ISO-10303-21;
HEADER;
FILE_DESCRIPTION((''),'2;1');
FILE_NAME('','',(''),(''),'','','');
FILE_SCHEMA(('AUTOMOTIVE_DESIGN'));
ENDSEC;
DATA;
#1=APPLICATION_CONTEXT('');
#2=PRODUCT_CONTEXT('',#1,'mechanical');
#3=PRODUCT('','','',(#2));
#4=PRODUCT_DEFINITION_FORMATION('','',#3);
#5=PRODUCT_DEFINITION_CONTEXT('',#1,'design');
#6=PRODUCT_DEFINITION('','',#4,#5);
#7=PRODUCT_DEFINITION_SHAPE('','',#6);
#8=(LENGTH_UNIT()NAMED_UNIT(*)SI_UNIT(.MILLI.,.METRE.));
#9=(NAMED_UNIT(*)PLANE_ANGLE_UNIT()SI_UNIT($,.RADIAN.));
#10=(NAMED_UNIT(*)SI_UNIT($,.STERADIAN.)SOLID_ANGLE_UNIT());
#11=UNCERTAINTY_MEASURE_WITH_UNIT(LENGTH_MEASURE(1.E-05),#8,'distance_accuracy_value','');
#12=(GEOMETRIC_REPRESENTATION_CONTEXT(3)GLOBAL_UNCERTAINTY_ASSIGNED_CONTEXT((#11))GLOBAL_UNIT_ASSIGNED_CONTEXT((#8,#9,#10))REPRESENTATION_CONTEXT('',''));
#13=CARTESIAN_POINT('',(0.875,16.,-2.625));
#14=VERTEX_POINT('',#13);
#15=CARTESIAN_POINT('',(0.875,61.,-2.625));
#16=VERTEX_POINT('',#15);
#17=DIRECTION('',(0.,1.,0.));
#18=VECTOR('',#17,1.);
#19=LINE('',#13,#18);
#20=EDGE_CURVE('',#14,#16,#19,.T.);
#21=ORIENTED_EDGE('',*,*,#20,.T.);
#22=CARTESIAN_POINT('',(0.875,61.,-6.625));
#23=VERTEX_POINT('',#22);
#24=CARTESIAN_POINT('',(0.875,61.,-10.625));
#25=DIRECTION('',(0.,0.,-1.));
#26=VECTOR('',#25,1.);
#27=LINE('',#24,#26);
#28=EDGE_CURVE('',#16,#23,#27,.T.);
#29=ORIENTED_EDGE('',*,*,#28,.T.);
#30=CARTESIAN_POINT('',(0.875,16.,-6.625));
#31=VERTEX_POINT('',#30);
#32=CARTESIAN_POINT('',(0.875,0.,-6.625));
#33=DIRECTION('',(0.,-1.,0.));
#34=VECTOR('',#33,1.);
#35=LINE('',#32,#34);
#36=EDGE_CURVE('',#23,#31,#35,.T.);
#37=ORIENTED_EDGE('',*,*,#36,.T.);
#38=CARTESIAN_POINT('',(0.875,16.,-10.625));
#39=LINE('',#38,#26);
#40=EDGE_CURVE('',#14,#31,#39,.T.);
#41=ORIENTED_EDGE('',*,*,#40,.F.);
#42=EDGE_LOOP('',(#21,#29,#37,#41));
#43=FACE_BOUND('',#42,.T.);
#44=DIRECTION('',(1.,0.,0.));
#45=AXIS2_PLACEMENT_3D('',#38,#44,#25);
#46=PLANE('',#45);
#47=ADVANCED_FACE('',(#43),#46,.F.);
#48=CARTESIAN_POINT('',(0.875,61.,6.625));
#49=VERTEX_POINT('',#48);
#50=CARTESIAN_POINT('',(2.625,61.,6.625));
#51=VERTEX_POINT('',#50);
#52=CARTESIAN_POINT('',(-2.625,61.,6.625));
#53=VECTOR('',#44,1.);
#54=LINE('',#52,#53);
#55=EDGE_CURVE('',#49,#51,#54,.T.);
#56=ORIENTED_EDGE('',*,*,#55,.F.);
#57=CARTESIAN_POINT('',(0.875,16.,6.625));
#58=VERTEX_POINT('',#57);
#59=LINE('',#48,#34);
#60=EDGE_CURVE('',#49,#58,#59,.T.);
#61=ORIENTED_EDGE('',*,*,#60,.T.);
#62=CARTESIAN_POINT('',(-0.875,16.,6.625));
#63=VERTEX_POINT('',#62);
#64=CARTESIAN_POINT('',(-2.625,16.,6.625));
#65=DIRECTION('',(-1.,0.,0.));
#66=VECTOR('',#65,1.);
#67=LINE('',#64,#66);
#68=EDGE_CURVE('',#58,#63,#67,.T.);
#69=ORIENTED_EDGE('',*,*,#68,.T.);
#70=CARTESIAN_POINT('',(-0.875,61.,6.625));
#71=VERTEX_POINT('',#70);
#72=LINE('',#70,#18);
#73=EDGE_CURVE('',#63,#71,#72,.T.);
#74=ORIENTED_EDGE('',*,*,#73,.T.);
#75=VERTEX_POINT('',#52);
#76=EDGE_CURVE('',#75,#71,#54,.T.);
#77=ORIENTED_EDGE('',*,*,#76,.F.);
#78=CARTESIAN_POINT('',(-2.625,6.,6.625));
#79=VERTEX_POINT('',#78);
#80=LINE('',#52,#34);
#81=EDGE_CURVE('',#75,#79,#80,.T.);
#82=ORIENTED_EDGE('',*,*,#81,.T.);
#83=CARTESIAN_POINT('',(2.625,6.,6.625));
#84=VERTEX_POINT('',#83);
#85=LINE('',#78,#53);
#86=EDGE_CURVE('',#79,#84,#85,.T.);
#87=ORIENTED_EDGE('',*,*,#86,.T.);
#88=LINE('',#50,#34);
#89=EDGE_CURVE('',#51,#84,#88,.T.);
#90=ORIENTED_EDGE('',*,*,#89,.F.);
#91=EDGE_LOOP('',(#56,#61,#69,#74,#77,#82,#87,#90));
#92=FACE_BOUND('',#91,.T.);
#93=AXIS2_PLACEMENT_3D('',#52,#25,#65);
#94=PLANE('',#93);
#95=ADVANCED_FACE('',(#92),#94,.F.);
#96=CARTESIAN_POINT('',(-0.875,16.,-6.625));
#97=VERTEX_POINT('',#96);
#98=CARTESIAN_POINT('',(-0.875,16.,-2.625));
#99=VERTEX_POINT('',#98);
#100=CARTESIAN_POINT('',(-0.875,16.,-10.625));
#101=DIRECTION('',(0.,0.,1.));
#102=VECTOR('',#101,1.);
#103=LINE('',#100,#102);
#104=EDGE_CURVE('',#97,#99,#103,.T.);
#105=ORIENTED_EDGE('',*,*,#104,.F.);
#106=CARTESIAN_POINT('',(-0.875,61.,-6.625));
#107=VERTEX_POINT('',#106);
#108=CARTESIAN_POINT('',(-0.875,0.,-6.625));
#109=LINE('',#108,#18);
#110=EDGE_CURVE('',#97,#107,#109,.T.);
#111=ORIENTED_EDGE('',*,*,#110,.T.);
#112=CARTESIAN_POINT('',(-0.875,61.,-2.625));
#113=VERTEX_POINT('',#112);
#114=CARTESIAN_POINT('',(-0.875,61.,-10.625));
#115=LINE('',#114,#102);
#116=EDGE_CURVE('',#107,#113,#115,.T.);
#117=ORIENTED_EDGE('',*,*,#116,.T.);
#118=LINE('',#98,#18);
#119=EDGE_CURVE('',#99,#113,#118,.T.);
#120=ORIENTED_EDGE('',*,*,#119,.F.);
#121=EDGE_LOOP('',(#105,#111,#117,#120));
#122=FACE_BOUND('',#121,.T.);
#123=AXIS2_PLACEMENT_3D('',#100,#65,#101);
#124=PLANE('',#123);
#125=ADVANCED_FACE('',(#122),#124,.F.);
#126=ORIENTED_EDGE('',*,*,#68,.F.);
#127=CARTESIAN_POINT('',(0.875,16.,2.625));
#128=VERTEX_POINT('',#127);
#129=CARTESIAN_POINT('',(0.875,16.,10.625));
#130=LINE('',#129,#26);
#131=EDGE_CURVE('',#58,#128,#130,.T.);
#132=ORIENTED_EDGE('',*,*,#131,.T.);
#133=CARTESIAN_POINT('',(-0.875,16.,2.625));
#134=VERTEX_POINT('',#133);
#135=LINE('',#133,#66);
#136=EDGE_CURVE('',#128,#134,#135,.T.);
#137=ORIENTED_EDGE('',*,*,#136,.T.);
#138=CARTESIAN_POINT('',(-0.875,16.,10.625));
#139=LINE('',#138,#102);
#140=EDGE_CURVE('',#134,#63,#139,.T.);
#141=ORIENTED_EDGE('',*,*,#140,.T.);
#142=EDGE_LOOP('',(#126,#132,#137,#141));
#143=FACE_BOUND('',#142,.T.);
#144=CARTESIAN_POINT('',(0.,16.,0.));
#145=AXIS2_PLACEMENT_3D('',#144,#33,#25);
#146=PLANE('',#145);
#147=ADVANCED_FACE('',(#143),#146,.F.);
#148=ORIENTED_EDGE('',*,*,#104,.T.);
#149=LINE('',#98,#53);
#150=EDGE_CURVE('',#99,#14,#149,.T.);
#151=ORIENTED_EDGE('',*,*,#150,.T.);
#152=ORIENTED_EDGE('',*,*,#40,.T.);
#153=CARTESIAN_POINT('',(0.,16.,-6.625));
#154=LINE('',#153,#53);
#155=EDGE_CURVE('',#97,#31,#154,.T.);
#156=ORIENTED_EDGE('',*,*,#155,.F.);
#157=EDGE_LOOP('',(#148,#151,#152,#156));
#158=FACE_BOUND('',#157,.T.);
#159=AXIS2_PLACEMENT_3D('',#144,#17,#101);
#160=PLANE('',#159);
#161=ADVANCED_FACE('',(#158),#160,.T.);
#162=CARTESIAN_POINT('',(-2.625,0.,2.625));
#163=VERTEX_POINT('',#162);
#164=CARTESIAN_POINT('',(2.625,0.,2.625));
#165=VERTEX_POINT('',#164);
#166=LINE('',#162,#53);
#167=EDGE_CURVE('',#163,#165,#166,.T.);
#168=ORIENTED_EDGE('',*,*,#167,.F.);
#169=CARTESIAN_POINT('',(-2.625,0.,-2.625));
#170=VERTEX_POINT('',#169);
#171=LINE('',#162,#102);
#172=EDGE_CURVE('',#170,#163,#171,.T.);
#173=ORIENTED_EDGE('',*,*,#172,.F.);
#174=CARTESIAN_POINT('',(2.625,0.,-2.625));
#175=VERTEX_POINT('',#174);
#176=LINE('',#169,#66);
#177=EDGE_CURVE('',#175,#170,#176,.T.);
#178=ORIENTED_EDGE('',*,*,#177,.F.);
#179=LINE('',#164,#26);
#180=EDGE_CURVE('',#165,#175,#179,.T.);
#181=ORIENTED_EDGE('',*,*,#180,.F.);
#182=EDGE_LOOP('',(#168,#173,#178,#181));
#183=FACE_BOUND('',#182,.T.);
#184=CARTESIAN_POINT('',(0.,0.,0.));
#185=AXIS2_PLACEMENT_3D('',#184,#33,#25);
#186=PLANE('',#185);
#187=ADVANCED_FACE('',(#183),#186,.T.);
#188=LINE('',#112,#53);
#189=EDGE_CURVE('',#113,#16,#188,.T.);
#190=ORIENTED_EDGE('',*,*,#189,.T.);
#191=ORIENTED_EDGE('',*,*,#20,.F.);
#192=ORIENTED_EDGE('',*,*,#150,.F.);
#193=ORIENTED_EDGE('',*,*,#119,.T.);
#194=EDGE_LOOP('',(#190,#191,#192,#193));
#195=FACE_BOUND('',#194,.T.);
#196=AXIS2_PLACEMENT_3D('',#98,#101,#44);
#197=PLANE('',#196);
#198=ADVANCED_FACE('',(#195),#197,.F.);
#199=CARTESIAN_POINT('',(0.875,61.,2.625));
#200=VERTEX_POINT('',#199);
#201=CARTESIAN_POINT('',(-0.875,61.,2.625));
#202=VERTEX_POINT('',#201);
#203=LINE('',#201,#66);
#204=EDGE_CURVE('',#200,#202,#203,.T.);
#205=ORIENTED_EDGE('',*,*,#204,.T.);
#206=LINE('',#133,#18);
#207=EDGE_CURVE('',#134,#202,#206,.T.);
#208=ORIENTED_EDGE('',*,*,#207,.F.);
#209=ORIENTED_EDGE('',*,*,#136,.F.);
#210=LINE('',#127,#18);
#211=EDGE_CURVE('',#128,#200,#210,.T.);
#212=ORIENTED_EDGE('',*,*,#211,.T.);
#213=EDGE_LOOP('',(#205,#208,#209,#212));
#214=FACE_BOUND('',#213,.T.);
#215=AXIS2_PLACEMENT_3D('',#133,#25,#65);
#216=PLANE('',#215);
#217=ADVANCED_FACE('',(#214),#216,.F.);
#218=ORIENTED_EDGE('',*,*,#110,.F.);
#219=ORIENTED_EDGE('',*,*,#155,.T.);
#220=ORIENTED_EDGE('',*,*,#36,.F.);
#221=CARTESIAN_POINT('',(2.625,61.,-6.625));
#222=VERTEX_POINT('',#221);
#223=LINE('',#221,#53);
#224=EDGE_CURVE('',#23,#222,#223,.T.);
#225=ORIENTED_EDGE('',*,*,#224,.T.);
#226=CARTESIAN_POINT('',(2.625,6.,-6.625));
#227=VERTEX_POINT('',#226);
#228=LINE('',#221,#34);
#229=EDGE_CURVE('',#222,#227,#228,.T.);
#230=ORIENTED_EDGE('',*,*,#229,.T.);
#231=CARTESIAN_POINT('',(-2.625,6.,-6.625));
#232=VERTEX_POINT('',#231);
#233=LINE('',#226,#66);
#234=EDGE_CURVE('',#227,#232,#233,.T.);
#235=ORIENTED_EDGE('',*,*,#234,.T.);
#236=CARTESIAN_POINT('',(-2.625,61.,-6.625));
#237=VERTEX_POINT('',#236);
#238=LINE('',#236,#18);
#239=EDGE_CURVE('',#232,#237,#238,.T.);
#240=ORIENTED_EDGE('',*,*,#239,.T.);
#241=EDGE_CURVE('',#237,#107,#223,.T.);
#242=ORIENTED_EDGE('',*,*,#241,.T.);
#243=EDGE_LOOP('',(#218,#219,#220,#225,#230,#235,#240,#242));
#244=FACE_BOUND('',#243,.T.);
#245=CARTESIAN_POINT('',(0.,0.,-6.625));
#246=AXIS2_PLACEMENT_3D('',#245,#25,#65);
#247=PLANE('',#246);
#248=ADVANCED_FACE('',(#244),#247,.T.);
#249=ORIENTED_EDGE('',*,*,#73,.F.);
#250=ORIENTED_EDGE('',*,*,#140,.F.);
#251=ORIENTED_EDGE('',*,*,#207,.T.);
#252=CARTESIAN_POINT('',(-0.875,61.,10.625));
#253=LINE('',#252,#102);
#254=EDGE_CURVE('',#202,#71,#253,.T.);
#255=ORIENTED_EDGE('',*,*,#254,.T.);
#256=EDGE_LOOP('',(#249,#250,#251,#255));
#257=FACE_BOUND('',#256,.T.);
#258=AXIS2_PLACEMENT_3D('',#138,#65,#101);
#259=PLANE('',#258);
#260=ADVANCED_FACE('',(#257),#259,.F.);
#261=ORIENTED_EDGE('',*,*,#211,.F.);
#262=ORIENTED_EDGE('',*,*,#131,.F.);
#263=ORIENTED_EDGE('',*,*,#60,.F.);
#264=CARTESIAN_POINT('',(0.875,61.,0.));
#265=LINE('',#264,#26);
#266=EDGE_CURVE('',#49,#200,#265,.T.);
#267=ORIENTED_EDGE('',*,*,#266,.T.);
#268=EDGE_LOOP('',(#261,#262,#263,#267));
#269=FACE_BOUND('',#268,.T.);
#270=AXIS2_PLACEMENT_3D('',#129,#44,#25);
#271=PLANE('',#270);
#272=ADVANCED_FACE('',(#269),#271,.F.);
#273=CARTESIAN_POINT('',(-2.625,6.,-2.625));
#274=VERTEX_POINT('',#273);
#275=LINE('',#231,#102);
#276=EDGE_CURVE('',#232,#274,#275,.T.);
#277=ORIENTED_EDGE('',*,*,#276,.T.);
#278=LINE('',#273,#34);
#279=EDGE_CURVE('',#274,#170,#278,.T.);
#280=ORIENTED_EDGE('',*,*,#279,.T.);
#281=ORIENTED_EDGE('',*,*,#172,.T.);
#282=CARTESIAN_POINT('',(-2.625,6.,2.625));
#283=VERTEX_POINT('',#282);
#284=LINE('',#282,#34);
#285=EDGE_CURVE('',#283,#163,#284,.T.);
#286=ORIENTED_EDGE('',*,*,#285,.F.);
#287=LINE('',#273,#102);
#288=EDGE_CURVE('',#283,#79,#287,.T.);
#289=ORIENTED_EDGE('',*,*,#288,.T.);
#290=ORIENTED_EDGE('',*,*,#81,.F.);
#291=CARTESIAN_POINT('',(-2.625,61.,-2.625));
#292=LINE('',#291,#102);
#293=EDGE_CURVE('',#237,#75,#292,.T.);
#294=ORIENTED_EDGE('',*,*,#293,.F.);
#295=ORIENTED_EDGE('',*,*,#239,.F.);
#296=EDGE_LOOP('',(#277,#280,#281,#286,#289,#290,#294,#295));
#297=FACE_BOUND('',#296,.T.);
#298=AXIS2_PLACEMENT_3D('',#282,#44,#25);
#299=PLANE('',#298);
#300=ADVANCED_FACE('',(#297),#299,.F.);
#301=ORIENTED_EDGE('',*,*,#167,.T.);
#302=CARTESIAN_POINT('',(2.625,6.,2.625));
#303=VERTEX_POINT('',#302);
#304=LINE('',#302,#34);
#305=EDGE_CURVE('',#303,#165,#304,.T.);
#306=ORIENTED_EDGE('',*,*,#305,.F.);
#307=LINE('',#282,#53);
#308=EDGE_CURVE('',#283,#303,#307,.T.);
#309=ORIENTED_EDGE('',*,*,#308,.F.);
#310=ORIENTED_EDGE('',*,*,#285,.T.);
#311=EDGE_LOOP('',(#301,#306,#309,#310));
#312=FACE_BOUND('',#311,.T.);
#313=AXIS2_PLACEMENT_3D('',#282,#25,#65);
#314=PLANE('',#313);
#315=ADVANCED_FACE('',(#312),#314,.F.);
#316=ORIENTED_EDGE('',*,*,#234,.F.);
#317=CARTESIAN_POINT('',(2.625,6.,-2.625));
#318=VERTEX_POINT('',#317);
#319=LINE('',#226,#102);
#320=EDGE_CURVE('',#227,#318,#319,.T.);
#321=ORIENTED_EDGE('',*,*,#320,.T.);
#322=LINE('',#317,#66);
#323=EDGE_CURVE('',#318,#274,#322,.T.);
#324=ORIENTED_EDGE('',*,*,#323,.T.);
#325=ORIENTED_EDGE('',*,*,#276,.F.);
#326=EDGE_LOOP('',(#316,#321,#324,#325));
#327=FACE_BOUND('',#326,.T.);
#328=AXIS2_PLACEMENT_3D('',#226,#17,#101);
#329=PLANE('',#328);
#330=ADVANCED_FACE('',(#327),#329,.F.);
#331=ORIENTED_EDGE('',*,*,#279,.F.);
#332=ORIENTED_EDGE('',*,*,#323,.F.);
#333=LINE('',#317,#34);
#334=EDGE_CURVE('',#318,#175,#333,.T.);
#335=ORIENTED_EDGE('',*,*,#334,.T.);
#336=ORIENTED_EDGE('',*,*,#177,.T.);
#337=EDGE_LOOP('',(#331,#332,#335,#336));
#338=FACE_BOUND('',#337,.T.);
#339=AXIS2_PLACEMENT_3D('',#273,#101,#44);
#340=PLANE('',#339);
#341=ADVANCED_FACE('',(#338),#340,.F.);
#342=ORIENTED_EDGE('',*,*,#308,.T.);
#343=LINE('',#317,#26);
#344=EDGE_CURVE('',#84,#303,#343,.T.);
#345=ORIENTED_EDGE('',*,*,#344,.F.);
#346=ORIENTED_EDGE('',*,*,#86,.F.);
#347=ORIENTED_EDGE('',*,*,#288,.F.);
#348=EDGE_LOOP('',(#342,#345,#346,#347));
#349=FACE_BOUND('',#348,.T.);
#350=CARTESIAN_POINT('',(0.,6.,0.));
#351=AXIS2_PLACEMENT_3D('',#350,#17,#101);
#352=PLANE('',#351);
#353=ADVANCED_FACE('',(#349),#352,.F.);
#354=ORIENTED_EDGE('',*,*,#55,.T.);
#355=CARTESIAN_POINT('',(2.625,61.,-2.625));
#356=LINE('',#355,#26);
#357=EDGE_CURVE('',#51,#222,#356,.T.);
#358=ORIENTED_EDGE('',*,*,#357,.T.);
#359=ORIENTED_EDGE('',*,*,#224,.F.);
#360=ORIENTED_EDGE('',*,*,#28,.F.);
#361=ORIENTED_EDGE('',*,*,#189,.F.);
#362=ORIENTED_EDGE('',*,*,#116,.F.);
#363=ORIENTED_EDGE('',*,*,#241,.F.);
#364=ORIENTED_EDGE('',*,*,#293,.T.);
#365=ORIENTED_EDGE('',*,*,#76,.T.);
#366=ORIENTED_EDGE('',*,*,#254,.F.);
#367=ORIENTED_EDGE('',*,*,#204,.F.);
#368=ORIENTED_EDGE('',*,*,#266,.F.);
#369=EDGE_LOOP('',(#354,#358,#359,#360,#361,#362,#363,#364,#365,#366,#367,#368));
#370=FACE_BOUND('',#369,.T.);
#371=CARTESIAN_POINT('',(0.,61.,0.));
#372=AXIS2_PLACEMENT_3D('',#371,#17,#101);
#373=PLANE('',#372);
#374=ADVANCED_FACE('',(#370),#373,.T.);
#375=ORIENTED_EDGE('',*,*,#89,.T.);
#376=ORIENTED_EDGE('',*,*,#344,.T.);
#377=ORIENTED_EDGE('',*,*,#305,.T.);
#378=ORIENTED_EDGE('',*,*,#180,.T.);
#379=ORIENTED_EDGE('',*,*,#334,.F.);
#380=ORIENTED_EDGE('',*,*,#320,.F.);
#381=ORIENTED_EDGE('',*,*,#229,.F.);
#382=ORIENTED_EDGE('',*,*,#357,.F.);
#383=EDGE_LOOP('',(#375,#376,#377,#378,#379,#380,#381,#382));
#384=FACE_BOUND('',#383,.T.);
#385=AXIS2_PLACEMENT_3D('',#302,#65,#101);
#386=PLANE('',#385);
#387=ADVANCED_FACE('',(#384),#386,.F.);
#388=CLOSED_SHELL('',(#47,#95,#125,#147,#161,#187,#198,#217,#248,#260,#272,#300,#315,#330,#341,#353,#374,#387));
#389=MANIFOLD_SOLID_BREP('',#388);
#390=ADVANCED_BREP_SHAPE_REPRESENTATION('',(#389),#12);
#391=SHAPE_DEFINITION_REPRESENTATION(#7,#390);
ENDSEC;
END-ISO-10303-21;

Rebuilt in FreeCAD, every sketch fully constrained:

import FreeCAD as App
import Part
import Sketcher

doc = App.newDocument("Part")
body = doc.addObject("PartDesign::Body", "Body")

# Sketch on XZ plane
sketch1 = body.newObject("Sketcher::SketchObject", "Sketch")
sketch1.AttachmentSupport = (doc.getObject("XZ_Plane"), [""])
sketch1.MapMode = "FlatFace"
sketch1.addGeometry([
    Part.LineSegment(App.Vector(-3, -3, 0), App.Vector(-3, 3, 0)),
    Part.LineSegment(App.Vector(-3, 3, 0), App.Vector(3, 3, 0)),
    Part.LineSegment(App.Vector(3, 3, 0), App.Vector(3, -3, 0)),
    Part.LineSegment(App.Vector(3, -3, 0), App.Vector(-3, -3, 0)),
], False)
sketch1.addConstraint([
    Sketcher.Constraint("Coincident", 0, 2, 1, 1),
    Sketcher.Constraint("Coincident", 1, 2, 2, 1),
    Sketcher.Constraint("Coincident", 2, 2, 3, 1),
    Sketcher.Constraint("Coincident", 3, 2, 0, 1),
    Sketcher.Constraint("Vertical", 0),
    Sketcher.Constraint("Horizontal", 1),
    Sketcher.Constraint("Vertical", 2),
    Sketcher.Constraint("Horizontal", 3),
    Sketcher.Constraint("Symmetric", 0, 2, 2, 2, -1, 1),
    Sketcher.Constraint("Equal", 3, 0),
    Sketcher.Constraint("DistanceX", 1, 1, 1, 2, 5.25),
])
pad1 = body.newObject("PartDesign::Pad", "Pad")
pad1.Profile = sketch1
pad1.Length = 6
pad1.Reversed = True

# Sketch on XZ plane
sketch2 = body.newObject("Sketcher::SketchObject", "Sketch001")
sketch2.AttachmentSupport = (doc.getObject("XZ_Plane"), [""])
sketch2.MapMode = "FlatFace"
sketch2.AttachmentOffset = App.Placement(App.Vector(0, 0, -6), App.Rotation())
sketch2.addGeometry([
    Part.LineSegment(App.Vector(-3, -3, 0), App.Vector(-3, 7, 0)),
    Part.LineSegment(App.Vector(-3, 7, 0), App.Vector(3, 7, 0)),
    Part.LineSegment(App.Vector(3, 7, 0), App.Vector(3, -3, 0)),
    Part.LineSegment(App.Vector(3, -3, 0), App.Vector(-3, -3, 0)),
], False)
sketch2.addConstraint([
    Sketcher.Constraint("Coincident", 0, 2, 1, 1),
    Sketcher.Constraint("Coincident", 1, 2, 2, 1),
    Sketcher.Constraint("Coincident", 2, 2, 3, 1),
    Sketcher.Constraint("Coincident", 3, 2, 0, 1),
    Sketcher.Constraint("Vertical", 0),
    Sketcher.Constraint("Horizontal", 1),
    Sketcher.Constraint("Vertical", 2),
    Sketcher.Constraint("Horizontal", 3),
    Sketcher.Constraint("DistanceX", 1, 1, 1, 2, 5.25),
    Sketcher.Constraint("DistanceY", 0, 1, 0, 2, 9.25),
    Sketcher.Constraint("DistanceX", 0, 2, -1, 1, 2.625),
    Sketcher.Constraint("DistanceY", -1, 1, 0, 2, 6.625),
])
pad2 = body.newObject("PartDesign::Pad", "Pad001")
pad2.Profile = sketch2
pad2.Length = 55
pad2.Reversed = True

# Sketch on XZ plane
sketch3 = body.newObject("Sketcher::SketchObject", "Sketch002")
sketch3.AttachmentSupport = (doc.getObject("XZ_Plane"), [""])
sketch3.MapMode = "FlatFace"
sketch3.AttachmentOffset = App.Placement(App.Vector(0, 0, -61), App.Rotation())
sketch3.addGeometry([
    Part.LineSegment(App.Vector(-0.9, 2.6, 0), App.Vector(-0.9, 10.6, 0)),
    Part.LineSegment(App.Vector(-0.9, 10.6, 0), App.Vector(0.9, 10.6, 0)),
    Part.LineSegment(App.Vector(0.9, 10.6, 0), App.Vector(0.9, 2.6, 0)),
    Part.LineSegment(App.Vector(0.9, 2.6, 0), App.Vector(-0.9, 2.6, 0)),
], False)
sketch3.addConstraint([
    Sketcher.Constraint("Coincident", 0, 2, 1, 1),
    Sketcher.Constraint("Coincident", 1, 2, 2, 1),
    Sketcher.Constraint("Coincident", 2, 2, 3, 1),
    Sketcher.Constraint("Coincident", 3, 2, 0, 1),
    Sketcher.Constraint("Vertical", 0),
    Sketcher.Constraint("Horizontal", 1),
    Sketcher.Constraint("Vertical", 2),
    Sketcher.Constraint("Horizontal", 3),
    Sketcher.Constraint("DistanceY", 0, 1, 0, 2, 8.0),
    Sketcher.Constraint("DistanceX", 1, 1, 1, 2, 1.75),
    Sketcher.Constraint("DistanceX", 0, 2, -1, 1, 0.875),
    Sketcher.Constraint("DistanceY", -1, 1, 0, 2, 10.625),
])
pocket1 = body.newObject("PartDesign::Pocket", "Pocket")
pocket1.Profile = sketch3
pocket1.Length = 45
pocket1.Reversed = True

# Sketch on XY plane
sketch4 = body.newObject("Sketcher::SketchObject", "Sketch003")
sketch4.AttachmentSupport = (doc.getObject("XY_Plane"), [""])
sketch4.MapMode = "FlatFace"
sketch4.AttachmentOffset = App.Placement(App.Vector(0, 0, -2.625), App.Rotation())
sketch4.addGeometry([
    Part.LineSegment(App.Vector(3, 61, 0), App.Vector(3, 6, 0)),
    Part.LineSegment(App.Vector(3, 6, 0), App.Vector(-3, 6, 0)),
    Part.LineSegment(App.Vector(-3, 6, 0), App.Vector(-3, 61, 0)),
    Part.LineSegment(App.Vector(-3, 61, 0), App.Vector(3, 61, 0)),
], False)
sketch4.addConstraint([
    Sketcher.Constraint("Coincident", 0, 2, 1, 1),
    Sketcher.Constraint("Coincident", 1, 2, 2, 1),
    Sketcher.Constraint("Coincident", 2, 2, 3, 1),
    Sketcher.Constraint("Coincident", 3, 2, 0, 1),
    Sketcher.Constraint("Vertical", 0),
    Sketcher.Constraint("Horizontal", 1),
    Sketcher.Constraint("Vertical", 2),
    Sketcher.Constraint("Horizontal", 3),
    Sketcher.Constraint("DistanceY", 0, 2, 0, 1, 55.0),
    Sketcher.Constraint("DistanceY", -1, 1, 0, 2, 6.0),
    Sketcher.Constraint("DistanceX", 1, 2, 1, 1, 5.25),
    Sketcher.Constraint("DistanceX", -1, 1, 0, 2, 2.625),
])
pad3 = body.newObject("PartDesign::Pad", "Pad002")
pad3.Profile = sketch4
pad3.Length = 4
pad3.Reversed = True

# Sketch on XZ plane
sketch5 = body.newObject("Sketcher::SketchObject", "Sketch004")
sketch5.AttachmentSupport = (doc.getObject("XZ_Plane"), [""])
sketch5.MapMode = "FlatFace"
sketch5.AttachmentOffset = App.Placement(App.Vector(0, 0, -61), App.Rotation())
sketch5.addGeometry([
    Part.LineSegment(App.Vector(-0.9, -10.6, 0), App.Vector(-0.9, -2.6, 0)),
    Part.LineSegment(App.Vector(-0.9, -2.6, 0), App.Vector(0.9, -2.6, 0)),
    Part.LineSegment(App.Vector(0.9, -2.6, 0), App.Vector(0.9, -10.6, 0)),
    Part.LineSegment(App.Vector(0.9, -10.6, 0), App.Vector(-0.9, -10.6, 0)),
], False)
sketch5.addConstraint([
    Sketcher.Constraint("Coincident", 0, 2, 1, 1),
    Sketcher.Constraint("Coincident", 1, 2, 2, 1),
    Sketcher.Constraint("Coincident", 2, 2, 3, 1),
    Sketcher.Constraint("Coincident", 3, 2, 0, 1),
    Sketcher.Constraint("Vertical", 0),
    Sketcher.Constraint("Horizontal", 1),
    Sketcher.Constraint("Vertical", 2),
    Sketcher.Constraint("Horizontal", 3),
    Sketcher.Constraint("DistanceY", 0, 1, 0, 2, 8.0),
    Sketcher.Constraint("DistanceX", 1, 1, 1, 2, 1.75),
    Sketcher.Constraint("DistanceX", 0, 2, -1, 1, 0.875),
    Sketcher.Constraint("DistanceY", 0, 2, -1, 1, 2.625),
])
pocket2 = body.newObject("PartDesign::Pocket", "Pocket001")
pocket2.Profile = sketch5
pocket2.Length = 45
pocket2.Reversed = True

doc.recompute()
